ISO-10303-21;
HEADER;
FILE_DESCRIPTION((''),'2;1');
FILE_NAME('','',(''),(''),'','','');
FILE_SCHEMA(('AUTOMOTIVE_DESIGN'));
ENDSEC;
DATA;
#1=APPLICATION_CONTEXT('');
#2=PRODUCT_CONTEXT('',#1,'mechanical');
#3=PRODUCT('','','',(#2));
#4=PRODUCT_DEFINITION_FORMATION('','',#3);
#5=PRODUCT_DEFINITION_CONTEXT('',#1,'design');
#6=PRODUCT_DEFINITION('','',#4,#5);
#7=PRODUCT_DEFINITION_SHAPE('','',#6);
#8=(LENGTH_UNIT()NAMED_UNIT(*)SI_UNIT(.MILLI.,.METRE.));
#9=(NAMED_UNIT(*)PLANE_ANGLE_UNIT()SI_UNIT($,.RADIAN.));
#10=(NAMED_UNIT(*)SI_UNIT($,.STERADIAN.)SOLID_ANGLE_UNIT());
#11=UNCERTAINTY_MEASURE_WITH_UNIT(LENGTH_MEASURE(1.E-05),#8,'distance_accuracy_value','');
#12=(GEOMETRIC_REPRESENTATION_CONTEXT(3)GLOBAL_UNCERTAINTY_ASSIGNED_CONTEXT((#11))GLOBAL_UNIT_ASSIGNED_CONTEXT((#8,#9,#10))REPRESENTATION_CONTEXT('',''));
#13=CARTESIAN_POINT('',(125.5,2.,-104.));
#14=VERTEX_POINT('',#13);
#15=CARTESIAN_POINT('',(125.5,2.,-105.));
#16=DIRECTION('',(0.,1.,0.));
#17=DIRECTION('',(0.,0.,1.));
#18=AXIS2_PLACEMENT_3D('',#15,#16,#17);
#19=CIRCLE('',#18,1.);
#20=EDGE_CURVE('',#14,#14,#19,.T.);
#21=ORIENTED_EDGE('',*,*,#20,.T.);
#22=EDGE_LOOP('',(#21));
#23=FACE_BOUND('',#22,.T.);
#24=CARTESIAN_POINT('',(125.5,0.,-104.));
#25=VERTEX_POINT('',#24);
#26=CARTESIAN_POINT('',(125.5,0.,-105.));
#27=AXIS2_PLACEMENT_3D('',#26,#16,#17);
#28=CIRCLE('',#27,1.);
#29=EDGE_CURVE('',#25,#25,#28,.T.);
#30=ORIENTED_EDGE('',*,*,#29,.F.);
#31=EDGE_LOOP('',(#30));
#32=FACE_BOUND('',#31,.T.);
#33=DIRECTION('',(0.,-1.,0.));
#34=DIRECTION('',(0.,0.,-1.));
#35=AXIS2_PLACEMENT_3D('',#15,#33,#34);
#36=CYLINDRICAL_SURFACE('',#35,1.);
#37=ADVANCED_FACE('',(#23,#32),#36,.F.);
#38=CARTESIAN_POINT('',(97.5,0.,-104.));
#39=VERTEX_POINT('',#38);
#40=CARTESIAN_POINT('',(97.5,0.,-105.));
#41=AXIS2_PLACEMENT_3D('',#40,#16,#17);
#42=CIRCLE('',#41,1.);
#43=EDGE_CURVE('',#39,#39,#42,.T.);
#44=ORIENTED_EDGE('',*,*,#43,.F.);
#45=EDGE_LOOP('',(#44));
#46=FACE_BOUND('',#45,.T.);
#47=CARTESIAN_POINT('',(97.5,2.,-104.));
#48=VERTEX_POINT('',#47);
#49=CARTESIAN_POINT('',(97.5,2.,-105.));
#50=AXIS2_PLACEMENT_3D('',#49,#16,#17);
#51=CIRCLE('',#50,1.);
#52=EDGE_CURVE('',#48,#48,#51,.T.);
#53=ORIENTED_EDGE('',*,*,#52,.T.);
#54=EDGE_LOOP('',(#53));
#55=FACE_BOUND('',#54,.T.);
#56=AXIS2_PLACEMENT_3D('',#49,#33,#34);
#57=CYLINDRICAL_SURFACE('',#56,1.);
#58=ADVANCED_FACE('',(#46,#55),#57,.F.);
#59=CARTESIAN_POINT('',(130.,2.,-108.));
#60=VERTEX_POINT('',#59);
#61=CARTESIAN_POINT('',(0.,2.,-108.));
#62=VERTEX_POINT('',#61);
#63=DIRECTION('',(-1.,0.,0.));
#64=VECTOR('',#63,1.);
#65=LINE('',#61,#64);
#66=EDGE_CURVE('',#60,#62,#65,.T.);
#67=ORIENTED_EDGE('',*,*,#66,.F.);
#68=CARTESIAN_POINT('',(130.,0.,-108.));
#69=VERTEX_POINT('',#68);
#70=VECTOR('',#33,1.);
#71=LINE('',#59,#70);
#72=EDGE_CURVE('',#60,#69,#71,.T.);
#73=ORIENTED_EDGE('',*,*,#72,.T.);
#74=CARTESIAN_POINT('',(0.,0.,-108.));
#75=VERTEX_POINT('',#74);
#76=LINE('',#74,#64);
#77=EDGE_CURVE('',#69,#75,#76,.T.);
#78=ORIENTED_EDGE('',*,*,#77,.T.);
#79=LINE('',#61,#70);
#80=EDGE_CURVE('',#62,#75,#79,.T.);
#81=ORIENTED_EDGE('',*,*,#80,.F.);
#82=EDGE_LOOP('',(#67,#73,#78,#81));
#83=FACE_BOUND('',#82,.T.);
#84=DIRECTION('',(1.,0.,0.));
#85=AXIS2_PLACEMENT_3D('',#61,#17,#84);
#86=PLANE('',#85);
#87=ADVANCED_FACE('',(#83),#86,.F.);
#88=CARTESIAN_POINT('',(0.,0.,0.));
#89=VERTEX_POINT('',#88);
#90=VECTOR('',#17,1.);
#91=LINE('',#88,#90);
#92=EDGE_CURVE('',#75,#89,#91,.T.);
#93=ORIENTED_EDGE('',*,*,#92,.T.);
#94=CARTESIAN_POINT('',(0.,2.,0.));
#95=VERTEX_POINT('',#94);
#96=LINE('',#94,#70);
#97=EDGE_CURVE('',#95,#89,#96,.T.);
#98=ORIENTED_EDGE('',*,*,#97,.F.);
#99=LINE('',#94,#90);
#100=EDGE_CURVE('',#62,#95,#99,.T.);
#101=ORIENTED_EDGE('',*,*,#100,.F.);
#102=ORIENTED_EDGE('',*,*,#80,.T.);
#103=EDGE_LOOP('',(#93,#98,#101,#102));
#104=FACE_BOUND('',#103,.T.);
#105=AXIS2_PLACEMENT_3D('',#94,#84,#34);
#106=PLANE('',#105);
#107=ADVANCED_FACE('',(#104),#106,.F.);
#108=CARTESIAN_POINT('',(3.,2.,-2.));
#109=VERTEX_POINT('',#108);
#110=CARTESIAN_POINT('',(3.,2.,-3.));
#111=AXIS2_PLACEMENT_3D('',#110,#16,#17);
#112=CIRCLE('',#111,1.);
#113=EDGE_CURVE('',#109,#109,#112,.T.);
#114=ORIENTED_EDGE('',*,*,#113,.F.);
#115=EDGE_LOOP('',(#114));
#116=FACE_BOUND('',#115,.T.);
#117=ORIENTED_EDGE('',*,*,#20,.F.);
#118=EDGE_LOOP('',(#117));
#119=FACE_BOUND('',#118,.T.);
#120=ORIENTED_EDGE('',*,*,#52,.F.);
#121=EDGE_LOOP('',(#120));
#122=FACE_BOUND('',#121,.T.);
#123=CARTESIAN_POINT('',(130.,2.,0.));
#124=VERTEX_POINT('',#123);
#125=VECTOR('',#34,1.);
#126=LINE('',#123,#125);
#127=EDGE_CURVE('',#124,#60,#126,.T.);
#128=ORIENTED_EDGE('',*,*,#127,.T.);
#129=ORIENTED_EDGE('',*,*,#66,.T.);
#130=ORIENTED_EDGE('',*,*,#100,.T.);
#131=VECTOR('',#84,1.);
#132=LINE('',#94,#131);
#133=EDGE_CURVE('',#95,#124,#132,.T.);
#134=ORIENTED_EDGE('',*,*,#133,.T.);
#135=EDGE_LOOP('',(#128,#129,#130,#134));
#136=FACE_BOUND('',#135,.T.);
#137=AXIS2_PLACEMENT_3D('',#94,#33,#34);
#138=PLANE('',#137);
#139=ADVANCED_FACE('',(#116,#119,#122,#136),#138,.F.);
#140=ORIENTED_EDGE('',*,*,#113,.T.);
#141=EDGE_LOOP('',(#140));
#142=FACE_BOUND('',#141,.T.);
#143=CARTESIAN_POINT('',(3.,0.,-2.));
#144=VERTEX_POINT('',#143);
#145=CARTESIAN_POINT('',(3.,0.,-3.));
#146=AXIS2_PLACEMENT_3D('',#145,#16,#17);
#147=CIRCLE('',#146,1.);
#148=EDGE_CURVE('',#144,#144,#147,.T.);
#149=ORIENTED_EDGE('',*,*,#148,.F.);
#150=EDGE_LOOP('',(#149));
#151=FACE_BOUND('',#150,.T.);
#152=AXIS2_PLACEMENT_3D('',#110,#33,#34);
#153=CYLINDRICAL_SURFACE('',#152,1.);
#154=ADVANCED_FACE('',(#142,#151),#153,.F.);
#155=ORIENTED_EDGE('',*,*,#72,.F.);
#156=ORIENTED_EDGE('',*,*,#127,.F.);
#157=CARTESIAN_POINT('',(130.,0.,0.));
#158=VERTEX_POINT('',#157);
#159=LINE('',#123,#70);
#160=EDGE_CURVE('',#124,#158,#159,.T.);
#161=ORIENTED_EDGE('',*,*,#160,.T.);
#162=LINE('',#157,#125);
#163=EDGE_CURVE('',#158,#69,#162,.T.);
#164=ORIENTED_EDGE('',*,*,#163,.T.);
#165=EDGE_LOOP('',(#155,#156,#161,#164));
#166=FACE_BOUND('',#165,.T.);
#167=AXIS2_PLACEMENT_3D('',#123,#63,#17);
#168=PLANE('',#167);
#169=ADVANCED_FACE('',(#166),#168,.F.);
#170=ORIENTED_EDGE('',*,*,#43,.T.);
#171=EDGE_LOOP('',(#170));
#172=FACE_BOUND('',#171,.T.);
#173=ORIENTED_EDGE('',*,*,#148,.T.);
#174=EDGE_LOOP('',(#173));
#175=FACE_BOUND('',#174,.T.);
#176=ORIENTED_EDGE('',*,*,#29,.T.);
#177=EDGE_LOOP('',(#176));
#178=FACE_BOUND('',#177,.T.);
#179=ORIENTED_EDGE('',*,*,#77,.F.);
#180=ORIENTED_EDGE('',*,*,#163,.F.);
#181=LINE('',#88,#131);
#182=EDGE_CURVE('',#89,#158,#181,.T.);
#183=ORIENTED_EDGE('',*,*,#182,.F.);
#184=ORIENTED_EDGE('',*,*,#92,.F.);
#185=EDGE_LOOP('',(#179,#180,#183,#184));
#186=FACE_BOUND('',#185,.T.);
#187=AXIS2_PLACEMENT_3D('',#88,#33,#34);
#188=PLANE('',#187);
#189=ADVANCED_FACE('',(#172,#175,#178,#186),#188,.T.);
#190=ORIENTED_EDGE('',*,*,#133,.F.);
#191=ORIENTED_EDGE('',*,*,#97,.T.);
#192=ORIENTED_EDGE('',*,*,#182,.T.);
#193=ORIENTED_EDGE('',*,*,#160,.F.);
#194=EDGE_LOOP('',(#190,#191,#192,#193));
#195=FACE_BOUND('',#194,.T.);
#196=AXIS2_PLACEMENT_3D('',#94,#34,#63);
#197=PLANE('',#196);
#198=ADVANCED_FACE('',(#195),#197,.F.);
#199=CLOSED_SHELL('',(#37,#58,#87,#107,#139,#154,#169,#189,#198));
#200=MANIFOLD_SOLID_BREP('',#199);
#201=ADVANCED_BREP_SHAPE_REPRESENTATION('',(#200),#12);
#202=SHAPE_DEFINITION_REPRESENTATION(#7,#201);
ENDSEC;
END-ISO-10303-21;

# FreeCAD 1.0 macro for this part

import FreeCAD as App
import Part
import Sketcher
Q = App.Units.Quantity

doc = App.newDocument("Part")
body = doc.addObject("PartDesign::Body", "Body")

# Sketch on XZ plane
sketch1 = body.newObject("Sketcher::SketchObject", "Sketch")
sketch1.AttachmentSupport = (doc.getObject("XZ_Plane"), [""])
sketch1.MapMode = "FlatFace"
sketch1.addGeometry([
    Part.LineSegment(App.Vector(0, -108, 0), App.Vector(0, 0, 0)),  # 0
    Part.LineSegment(App.Vector(0, 0, 0), App.Vector(130, 0, 0)),  # 1
    Part.LineSegment(App.Vector(130, 0, 0), App.Vector(130, -108, 0)),  # 2
    Part.LineSegment(App.Vector(130, -108, 0), App.Vector(0, -108, 0)),  # 3
    Part.Circle(App.Vector(3, -3, 0), App.Vector(0, 0, 1), 1),  # 4
    Part.Circle(App.Vector(97.5, -105, 0), App.Vector(0, 0, 1), 1),  # 5
    Part.Circle(App.Vector(125.5, -105, 0), App.Vector(0, 0, 1), 1),  # 6
], False)
sketch1.addConstraint([
    Sketcher.Constraint("Coincident", 0, 2, 1, 1),
    Sketcher.Constraint("Coincident", 1, 2, 2, 1),
    Sketcher.Constraint("Coincident", 2, 2, 3, 1),
    Sketcher.Constraint("Coincident", 3, 2, 0, 1),
    Sketcher.Constraint("Vertical", 0),
    Sketcher.Constraint("Horizontal", 1),
    Sketcher.Constraint("Vertical", 2),
    Sketcher.Constraint("Horizontal", 3),
    Sketcher.Constraint("Coincident", 0, 2, -1, 1),
    Sketcher.Constraint("Equal", 4, 5),
    Sketcher.Constraint("Equal", 5, 6),
    Sketcher.Constraint("Horizontal", 5, 3, 6, 3),
    Sketcher.Constraint("Diameter", 4, Q("2 mm")),
    Sketcher.Constraint("DistanceX", 1, 1, 1, 2, Q("130 mm")),
    Sketcher.Constraint("DistanceY", 0, 1, 0, 2, Q("108 mm")),
    Sketcher.Constraint("DistanceX", -1, 1, 4, 3, Q("3 mm")),
    Sketcher.Constraint("DistanceY", 4, 3, -1, 1, Q("3 mm")),
    Sketcher.Constraint("DistanceY", 5, 3, -1, 1, Q("105 mm")),
    Sketcher.Constraint("DistanceX", 5, 3, 6, 3, Q("28 mm")),
    Sketcher.Constraint("DistanceX", -1, 1, 5, 3, Q("97.5 mm")),
])
pad1 = body.newObject("PartDesign::Pad", "Pad")
pad1.Profile = sketch1
pad1.Length = 2
pad1.Reversed = True

doc.recompute()
